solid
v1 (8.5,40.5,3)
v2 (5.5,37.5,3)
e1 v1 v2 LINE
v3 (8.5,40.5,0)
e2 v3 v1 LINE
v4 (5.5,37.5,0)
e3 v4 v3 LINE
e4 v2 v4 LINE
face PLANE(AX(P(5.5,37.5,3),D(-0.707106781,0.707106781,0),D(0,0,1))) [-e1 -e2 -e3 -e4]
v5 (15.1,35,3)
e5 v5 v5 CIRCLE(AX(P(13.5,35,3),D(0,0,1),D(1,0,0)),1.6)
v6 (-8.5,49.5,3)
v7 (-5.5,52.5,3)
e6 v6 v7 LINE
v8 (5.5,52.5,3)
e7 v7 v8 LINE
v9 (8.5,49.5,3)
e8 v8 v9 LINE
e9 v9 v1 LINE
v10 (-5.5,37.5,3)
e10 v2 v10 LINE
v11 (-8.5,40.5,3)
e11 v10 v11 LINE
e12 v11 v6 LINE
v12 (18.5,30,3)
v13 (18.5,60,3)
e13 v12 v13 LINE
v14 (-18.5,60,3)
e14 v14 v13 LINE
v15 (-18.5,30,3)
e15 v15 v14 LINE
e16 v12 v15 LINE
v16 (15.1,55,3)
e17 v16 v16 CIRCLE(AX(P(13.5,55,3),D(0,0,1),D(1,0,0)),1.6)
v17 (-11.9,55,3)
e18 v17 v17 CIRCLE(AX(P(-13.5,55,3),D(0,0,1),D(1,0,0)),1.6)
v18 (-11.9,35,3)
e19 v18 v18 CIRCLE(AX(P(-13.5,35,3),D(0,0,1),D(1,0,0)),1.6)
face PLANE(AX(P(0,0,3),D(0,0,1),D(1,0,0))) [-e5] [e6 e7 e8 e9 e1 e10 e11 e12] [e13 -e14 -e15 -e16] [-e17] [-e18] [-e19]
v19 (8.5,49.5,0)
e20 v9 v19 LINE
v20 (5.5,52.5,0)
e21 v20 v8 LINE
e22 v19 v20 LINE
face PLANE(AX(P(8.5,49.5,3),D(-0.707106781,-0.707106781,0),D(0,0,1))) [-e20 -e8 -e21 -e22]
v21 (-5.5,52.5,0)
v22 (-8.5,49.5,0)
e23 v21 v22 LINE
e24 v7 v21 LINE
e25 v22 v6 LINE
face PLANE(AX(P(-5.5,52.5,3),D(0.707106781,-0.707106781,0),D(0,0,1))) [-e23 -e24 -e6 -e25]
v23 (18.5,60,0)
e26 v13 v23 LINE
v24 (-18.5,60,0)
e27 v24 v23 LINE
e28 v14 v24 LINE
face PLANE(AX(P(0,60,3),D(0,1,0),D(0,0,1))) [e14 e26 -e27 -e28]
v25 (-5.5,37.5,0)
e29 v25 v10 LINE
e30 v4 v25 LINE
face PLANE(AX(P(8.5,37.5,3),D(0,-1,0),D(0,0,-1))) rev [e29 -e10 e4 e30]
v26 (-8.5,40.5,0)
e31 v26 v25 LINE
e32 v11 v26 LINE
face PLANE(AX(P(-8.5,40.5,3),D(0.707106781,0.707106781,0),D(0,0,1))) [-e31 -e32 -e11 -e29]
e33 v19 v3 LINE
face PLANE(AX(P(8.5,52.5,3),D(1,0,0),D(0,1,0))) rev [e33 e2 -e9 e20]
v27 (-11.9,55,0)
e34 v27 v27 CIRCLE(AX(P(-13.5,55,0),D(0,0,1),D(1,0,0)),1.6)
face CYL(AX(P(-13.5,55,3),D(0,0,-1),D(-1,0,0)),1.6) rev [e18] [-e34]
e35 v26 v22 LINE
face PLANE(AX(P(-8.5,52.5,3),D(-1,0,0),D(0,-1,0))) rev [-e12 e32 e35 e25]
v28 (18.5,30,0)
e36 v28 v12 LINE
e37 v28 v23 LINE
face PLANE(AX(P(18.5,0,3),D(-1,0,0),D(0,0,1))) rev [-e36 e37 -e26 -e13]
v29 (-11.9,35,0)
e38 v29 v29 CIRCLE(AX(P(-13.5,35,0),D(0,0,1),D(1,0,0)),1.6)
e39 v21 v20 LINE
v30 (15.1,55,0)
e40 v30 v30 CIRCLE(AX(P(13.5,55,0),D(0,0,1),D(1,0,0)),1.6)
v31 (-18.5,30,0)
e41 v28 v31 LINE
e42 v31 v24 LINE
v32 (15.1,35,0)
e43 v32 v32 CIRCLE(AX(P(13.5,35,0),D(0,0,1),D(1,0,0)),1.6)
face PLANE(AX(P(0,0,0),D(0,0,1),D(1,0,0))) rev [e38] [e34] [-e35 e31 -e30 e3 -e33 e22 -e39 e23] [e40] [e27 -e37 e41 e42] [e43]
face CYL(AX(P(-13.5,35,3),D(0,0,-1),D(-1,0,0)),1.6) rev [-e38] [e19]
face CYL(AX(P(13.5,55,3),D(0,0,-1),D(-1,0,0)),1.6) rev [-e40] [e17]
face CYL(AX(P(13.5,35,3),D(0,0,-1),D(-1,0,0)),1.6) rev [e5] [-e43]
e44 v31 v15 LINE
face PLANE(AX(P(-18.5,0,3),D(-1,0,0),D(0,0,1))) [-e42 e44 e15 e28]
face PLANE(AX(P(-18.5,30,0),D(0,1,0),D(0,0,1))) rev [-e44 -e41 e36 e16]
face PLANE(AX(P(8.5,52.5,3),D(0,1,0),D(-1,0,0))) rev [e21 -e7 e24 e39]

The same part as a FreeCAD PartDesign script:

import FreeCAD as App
import Part
import Sketcher

V = App.Vector
Q = App.Units.Quantity


def edges_at(feature, points):
    """Names of the edges that pass closest to the given points."""
    edges = feature.Shape.Edges
    near = lambda p: min(range(len(edges)), key=lambda i: edges[i].distToShape(Part.Vertex(*p))[0])
    return sorted({f"Edge{near(p) + 1}" for p in points})


def add_polygon(sketch, points):
    """Adds a closed chain of lines whose ends are joined by coincident constraints."""
    first, n = sketch.GeometryCount, len(points)
    for a, b in zip(points, points[1:] + points[:1]):
        sketch.addGeometry(Part.LineSegment(App.Vector(*a, 0), App.Vector(*b, 0)), False)
    for i in range(n):
        sketch.addConstraint(Sketcher.Constraint("Coincident", first + i, 2, first + (i + 1) % n, 1))

doc = App.newDocument("Part")
body = doc.addObject("PartDesign::Body", "Body")

# Sketch on XY plane
sketch1 = body.newObject("Sketcher::SketchObject", "Sketch")
sketch1.AttachmentSupport = (doc.getObject("XY_Plane"), [""])
sketch1.MapMode = "FlatFace"
add_polygon(sketch1, [(-18.5, 60), (-18.5, -60), (18.5, -60), (18.5, 60)])  # lines 0-3
sketch1.addGeometry(Part.Circle(V(-13.5, -55, 0), V(0, 0, 1), 1.6), False)  # 4
sketch1.addGeometry(Part.Circle(V(-13.5, -35, 0), V(0, 0, 1), 3), False)  # 5
sketch1.addGeometry(Part.Circle(V(13.5, -55, 0), V(0, 0, 1), 1.6), False)  # 6
sketch1.addGeometry(Part.Circle(V(13.5, -35, 0), V(0, 0, 1), 3), False)  # 7
sketch1.addGeometry(Part.Circle(V(-13.5, 35, 0), V(0, 0, 1), 1.6), False)  # 8
sketch1.addGeometry(Part.Circle(V(-13.5, 55, 0), V(0, 0, 1), 1.6), False)  # 9
sketch1.addGeometry(Part.Circle(V(13.5, 35, 0), V(0, 0, 1), 1.6), False)  # 10
sketch1.addGeometry(Part.Circle(V(13.5, 55, 0), V(0, 0, 1), 1.6), False)  # 11
sketch1.addConstraint([
    Sketcher.Constraint("Vertical", 0),
    Sketcher.Constraint("Horizontal", 1),
    Sketcher.Constraint("Vertical", 2),
    Sketcher.Constraint("Horizontal", 3),
    Sketcher.Constraint("Equal", 4, 6),
    Sketcher.Constraint("Equal", 5, 7),
    Sketcher.Constraint("Equal", 6, 8),
    Sketcher.Constraint("Equal", 8, 9),
    Sketcher.Constraint("Equal", 9, 10),
    Sketcher.Constraint("Equal", 10, 11),
    Sketcher.Constraint("Symmetric", 7, 3, 8, 3, -1, 1),
    Sketcher.Constraint("Symmetric", 6, 3, 9, 3, -1, 1),
    Sketcher.Constraint("Symmetric", 5, 3, 10, 3, -1, 1),
    Sketcher.Constraint("Symmetric", 4, 3, 11, 3, -1, 1),
    Sketcher.Constraint("Symmetric", 0, 2, 2, 2, -1, 1),
    Sketcher.Constraint("Symmetric", 4, 3, 6, 3, -2),
    Sketcher.Constraint("Symmetric", 5, 3, 7, 3, -2),
    Sketcher.Constraint("Vertical", 4, 3, 5, 3),
    Sketcher.Constraint("Diameter", 5, Q("6 mm")),
    Sketcher.Constraint("Diameter", 4, Q("3.2 mm")),
    Sketcher.Constraint("DistanceX", 1, 1, 1, 2, Q("37 mm")),
    Sketcher.Constraint("DistanceY", 0, 2, 0, 1, Q("120 mm")),
    Sketcher.Constraint("DistanceY", 4, 3, -1, 1, Q("55 mm")),
    Sketcher.Constraint("DistanceY", 5, 3, -1, 1, Q("35 mm")),
    Sketcher.Constraint("DistanceX", 4, 3, 6, 3, Q("27 mm")),
])
pad1 = body.newObject("PartDesign::Pad", "Pad")
pad1.Profile = sketch1
pad1.Length = 3

# Sketch on XY plane
sketch2 = body.newObject("Sketcher::SketchObject", "Sketch001")
sketch2.AttachmentSupport = (doc.getObject("XY_Plane"), [""])
sketch2.MapMode = "FlatFace"
sketch2.AttachmentOffset = App.Placement(V(0, 0, 3), App.Rotation())
add_polygon(sketch2, [(-18, 30), (-18, -60), (18, -60), (18, 30)])  # lines 0-3
sketch2.addConstraint([
    Sketcher.Constraint("Vertical", 0),
    Sketcher.Constraint("Horizontal", 1),
    Sketcher.Constraint("Vertical", 2),
    Sketcher.Constraint("Horizontal", 3),
    Sketcher.Constraint("DistanceX", 1, 1, 1, 2, Q("37 mm")),
    Sketcher.Constraint("DistanceY", 0, 2, 0, 1, Q("90 mm")),
    Sketcher.Constraint("DistanceY", 0, 2, -1, 1, Q("60 mm")),
    Sketcher.Constraint("DistanceX", 0, 2, -1, 1, Q("18.5 mm")),
])
pocket1 = body.newObject("PartDesign::Pocket", "Pocket")
pocket1.Profile = sketch2
pocket1.Length = 3

# Sketch on XY plane
sketch3 = body.newObject("Sketcher::SketchObject", "Sketch002")
sketch3.AttachmentSupport = (doc.getObject("XY_Plane"), [""])
sketch3.MapMode = "FlatFace"
add_polygon(sketch3, [(8, 52), (8, 38), (-8, 38), (-8, 52)])  # lines 0-3
sketch3.addConstraint([
    Sketcher.Constraint("Vertical", 0),
    Sketcher.Constraint("Horizontal", 1),
    Sketcher.Constraint("Vertical", 2),
    Sketcher.Constraint("Horizontal", 3),
    Sketcher.Constraint("DistanceX", 1, 2, 1, 1, Q("17 mm")),
    Sketcher.Constraint("DistanceY", 0, 2, 0, 1, Q("15 mm")),
    Sketcher.Constraint("DistanceX", -1, 1, 0, 2, Q("8.5 mm")),
    Sketcher.Constraint("DistanceY", -1, 1, 0, 2, Q("37.5 mm")),
])
pocket2 = body.newObject("PartDesign::Pocket", "Pocket001")
pocket2.Profile = sketch3
pocket2.Type = "ThroughAll"
pocket2.Reversed = True
doc.recompute()

chamfer = body.newObject("PartDesign::Chamfer", "Chamfer")
chamfer.Base = (pocket2, edges_at(pocket2, [
    (8.5, 37.5, 1.5),
    (8.5, 52.5, 1.5),
    (-8.5, 52.5, 1.5),
    (-8.5, 37.5, 1.5),
]))
chamfer.Size = 3

doc.recompute()
